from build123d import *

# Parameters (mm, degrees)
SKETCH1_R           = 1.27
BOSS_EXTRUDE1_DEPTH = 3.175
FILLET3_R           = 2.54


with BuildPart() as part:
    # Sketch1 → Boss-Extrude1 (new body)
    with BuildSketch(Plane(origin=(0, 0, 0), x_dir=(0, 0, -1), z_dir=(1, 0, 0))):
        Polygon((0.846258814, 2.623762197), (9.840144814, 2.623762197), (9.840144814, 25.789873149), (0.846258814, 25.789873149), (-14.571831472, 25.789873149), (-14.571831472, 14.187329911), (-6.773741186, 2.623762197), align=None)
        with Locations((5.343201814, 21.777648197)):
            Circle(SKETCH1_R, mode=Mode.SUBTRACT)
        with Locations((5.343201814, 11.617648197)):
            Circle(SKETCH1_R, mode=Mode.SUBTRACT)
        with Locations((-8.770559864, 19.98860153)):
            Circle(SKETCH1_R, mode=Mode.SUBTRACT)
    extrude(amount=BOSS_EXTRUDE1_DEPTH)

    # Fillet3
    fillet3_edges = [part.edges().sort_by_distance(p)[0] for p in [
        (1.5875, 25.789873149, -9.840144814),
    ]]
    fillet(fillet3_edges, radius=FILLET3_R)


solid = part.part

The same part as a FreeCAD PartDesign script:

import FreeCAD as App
import Part
import Sketcher
from FreeCAD import Vector
Q = App.Units.Quantity


def edges_at(feature, points):
    """Names of the edges that pass closest to the given points."""
    edges = feature.Shape.Edges
    near = lambda p: min(range(len(edges)), key=lambda i: edges[i].distToShape(Part.Vertex(*p))[0])
    return sorted({f"Edge{near(p) + 1}" for p in points})

doc = App.newDocument("Part")
body = doc.addObject("PartDesign::Body", "Body")

sketch1 = body.newObject("Sketcher::SketchObject", "Sketch")
sketch1.AttachmentSupport = (doc.getObject("YZ_Plane"), [""])
sketch1.MapMode = "FlatFace"
sketch1.addGeometry(Part.LineSegment(Vector(2.6, -9.8, 0), Vector(25.8, -9.8, 0)), False)
sketch1.addGeometry(Part.LineSegment(Vector(25.8, -9.8, 0), Vector(25.8, 14.6, 0)), False)
sketch1.addGeometry(Part.LineSegment(Vector(25.8, 14.6, 0), Vector(14.2, 14.6, 0)), False)
sketch1.addGeometry(Part.LineSegment(Vector(14.2, 14.6, 0), Vector(2.6, 6.8, 0)), False)
sketch1.addGeometry(Part.LineSegment(Vector(2.6, 6.8, 0), Vector(2.6, -9.8, 0)), False)
sketch1.addGeometry(Part.Circle(Vector(11.6, -5.3, 0), Vector(0, 0, 1), 1.3), False)
sketch1.addGeometry(Part.Circle(Vector(20, 8.8, 0), Vector(0, 0, 1), 1.3), False)
sketch1.addGeometry(Part.Circle(Vector(21.8, -5.3, 0), Vector(0, 0, 1), 1.3), False)
sketch1.addConstraint(Sketcher.Constraint("Coincident", 0, 2, 1, 1))
sketch1.addConstraint(Sketcher.Constraint("Coincident", 1, 2, 2, 1))
sketch1.addConstraint(Sketcher.Constraint("Coincident", 2, 2, 3, 1))
sketch1.addConstraint(Sketcher.Constraint("Coincident", 3, 2, 4, 1))
sketch1.addConstraint(Sketcher.Constraint("Coincident", 4, 2, 0, 1))
sketch1.addConstraint(Sketcher.Constraint("Horizontal", 0))
sketch1.addConstraint(Sketcher.Constraint("Vertical", 1))
sketch1.addConstraint(Sketcher.Constraint("Horizontal", 2))
sketch1.addConstraint(Sketcher.Constraint("Vertical", 4))
sketch1.addConstraint(Sketcher.Constraint("Equal", 5, 6))
sketch1.addConstraint(Sketcher.Constraint("Equal", 6, 7))
sketch1.addConstraint(Sketcher.Constraint("Horizontal", 5, 3, 7, 3))
sketch1.addConstraint(Sketcher.Constraint("Diameter", 5, Q("0.1 in")))
sketch1.addConstraint(Sketcher.Constraint("DistanceX", 5, 3, 7, 3, Q("0.4 in")))
sketch1.addConstraint(Sketcher.Constraint("DistanceX", 0, 1, 0, 2, 23.166111))
sketch1.addConstraint(Sketcher.Constraint("DistanceY", 5, 3, -1, 1, 5.343202))
sketch1.addConstraint(Sketcher.Constraint("DistanceX", -1, 1, 6, 3, 19.988602))
sketch1.addConstraint(Sketcher.Constraint("Distance", 3, 13.947269))
sketch1.addConstraint(Sketcher.Constraint("DistanceX", 2, 2, 2, 1, 11.602543))
sketch1.addConstraint(Sketcher.Constraint("DistanceY", 1, 1, 1, 2, 24.411976))
sketch1.addConstraint(Sketcher.Constraint("DistanceX", -1, 1, 5, 3, 11.617648))
sketch1.addConstraint(Sketcher.Constraint("DistanceY", -1, 1, 6, 3, 8.77056))
sketch1.addConstraint(Sketcher.Constraint("DistanceY", -1, 1, 1, 2, 14.571831))
sketch1.addConstraint(Sketcher.Constraint("DistanceX", -1, 1, 2, 2, 14.18733))
pad1 = body.newObject("PartDesign::Pad", "Pad")
pad1.Profile = sketch1
pad1.Length = Q("0.125 in")
doc.recompute()

fillet = body.newObject("PartDesign::Fillet", "Fillet")
fillet.Base = (pad1, edges_at(pad1, [(1.587, 25.79, -9.84)]))
fillet.Radius = Q("0.1 in")

doc.recompute()
